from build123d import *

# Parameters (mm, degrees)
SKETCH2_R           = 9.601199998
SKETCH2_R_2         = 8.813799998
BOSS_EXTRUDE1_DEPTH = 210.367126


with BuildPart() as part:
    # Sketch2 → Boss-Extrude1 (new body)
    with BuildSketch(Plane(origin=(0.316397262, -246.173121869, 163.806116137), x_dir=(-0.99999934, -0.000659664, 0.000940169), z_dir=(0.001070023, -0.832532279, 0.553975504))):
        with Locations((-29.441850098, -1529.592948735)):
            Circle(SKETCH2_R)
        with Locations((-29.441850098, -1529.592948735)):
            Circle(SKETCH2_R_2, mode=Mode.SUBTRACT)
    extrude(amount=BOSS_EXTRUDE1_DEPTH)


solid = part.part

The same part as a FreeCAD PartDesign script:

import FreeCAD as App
import Part
import Sketcher
from FreeCAD import Vector
Q = App.Units.Quantity

doc = App.newDocument("Part")
params = doc.addObject("Spreadsheet::Sheet", "Params")
for row, (alias, value) in enumerate([
    ("sketch1_diameter", "0.756 in"),
    ("sketch1_diameter2", "0.694 in"),
    ("pad1_length", "210.367126 mm"),
], start=1):
    params.set(f"A{row}", alias)
    params.set(f"B{row}", "=" + value)
    params.setAlias(f"B{row}", alias)

body = doc.addObject("PartDesign::Body", "Body")

# Sketch on an angled plane
sketch1 = doc.addObject("Sketcher::SketchObject", "Sketch")
body.addObject(sketch1)
sketch1.Placement = App.Placement(Vector(0.316397, -246.173122, 163.806116), App.Rotation(Vector(-0.99999934, -0.000659664, 0.000940169), Vector(-0.000417283, -0.553976144, -0.832532435), Vector(0.001070023, -0.832532279, 0.553975504), "ZXY"))
sketch1.addGeometry([
    Part.Circle(Vector(-29, -1530, 0), Vector(0, 0, 1), 10),
    Part.Circle(Vector(-29, -1530, 0), Vector(0, 0, 1), 9),
], False)
sketch1.addConstraint([
    Sketcher.Constraint("Coincident", 1, 3, 0, 3),
    Sketcher.Constraint("Diameter", 0, Q("0.756 in")),
    Sketcher.Constraint("Diameter", 1, Q("0.694 in")),
    Sketcher.Constraint("DistanceX", 0, 3, -1, 1, Q("29.44185 mm")),
    Sketcher.Constraint("DistanceY", 0, 3, -1, 1, Q("1529.592947 mm")),
])
sketch1.setExpression("Constraints[1]", "Params.sketch1_diameter")
sketch1.setExpression("Constraints[2]", "Params.sketch1_diameter2")
pad1 = doc.addObject("PartDesign::Pad", "Pad")
body.addObject(pad1)
pad1.Profile = sketch1
pad1.setExpression("Length", "Params.pad1_length")

doc.recompute()
